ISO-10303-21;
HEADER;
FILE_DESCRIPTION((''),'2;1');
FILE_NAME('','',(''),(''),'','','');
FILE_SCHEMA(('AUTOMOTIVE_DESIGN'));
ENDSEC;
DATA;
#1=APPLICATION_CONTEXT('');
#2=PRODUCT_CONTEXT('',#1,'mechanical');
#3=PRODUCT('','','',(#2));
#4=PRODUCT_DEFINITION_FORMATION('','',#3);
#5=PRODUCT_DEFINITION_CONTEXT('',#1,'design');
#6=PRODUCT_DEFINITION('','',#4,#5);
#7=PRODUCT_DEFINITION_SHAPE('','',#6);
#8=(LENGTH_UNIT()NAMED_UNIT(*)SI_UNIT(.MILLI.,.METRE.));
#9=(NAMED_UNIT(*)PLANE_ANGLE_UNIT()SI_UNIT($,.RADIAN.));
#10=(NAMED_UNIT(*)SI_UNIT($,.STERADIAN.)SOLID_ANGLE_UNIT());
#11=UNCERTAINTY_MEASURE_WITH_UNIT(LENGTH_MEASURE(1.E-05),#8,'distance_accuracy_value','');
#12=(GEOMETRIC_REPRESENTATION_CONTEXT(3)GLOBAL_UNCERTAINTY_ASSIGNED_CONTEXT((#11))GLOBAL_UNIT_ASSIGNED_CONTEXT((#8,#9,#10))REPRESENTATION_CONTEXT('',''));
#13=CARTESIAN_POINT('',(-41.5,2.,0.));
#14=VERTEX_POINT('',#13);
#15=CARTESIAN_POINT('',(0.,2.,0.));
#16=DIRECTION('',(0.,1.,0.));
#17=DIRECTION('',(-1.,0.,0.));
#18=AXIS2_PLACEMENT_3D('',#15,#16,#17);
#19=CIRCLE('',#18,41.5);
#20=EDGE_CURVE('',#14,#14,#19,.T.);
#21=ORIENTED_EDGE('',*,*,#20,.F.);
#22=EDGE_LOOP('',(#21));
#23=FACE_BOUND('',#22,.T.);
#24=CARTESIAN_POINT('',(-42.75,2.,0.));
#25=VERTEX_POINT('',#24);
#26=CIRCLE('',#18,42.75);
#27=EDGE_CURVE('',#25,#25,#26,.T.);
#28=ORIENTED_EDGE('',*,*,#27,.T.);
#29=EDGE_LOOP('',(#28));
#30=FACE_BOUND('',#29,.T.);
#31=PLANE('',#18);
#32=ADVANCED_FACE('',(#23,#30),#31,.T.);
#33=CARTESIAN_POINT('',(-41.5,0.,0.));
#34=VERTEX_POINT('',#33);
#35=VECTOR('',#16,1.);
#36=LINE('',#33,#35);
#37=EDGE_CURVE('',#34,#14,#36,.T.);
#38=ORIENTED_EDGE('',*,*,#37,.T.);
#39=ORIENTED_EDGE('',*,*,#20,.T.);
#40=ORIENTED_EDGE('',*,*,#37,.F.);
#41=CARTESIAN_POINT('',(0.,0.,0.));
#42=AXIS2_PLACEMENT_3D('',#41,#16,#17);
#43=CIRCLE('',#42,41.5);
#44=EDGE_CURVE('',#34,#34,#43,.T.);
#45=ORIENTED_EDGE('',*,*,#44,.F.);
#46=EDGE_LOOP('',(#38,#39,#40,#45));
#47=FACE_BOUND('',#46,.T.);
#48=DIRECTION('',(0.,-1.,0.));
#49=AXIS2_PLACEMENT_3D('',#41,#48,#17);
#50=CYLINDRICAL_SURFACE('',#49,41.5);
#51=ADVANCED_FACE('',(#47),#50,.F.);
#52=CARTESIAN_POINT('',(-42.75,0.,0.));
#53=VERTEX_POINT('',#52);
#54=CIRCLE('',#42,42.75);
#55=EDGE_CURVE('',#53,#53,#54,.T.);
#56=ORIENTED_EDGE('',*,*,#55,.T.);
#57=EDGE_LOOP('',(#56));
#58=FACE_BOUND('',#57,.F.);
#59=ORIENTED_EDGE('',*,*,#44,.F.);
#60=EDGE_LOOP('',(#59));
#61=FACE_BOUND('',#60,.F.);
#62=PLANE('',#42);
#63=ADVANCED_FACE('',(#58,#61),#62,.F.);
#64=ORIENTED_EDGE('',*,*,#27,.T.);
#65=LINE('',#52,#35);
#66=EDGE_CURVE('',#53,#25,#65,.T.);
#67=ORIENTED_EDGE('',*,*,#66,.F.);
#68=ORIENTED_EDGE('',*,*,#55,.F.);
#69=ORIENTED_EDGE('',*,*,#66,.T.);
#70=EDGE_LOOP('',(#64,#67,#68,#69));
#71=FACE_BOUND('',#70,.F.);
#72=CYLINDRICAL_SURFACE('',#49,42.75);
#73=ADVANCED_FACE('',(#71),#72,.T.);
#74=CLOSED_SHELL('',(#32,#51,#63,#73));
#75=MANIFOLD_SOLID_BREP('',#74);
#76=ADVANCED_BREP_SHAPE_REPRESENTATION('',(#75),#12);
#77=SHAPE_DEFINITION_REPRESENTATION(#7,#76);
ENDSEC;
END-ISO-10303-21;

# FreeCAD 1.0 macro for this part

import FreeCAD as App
import Part
import Sketcher

V = App.Vector

doc = App.newDocument("Part")
body = doc.addObject("PartDesign::Body", "Body")

# Sketch on XZ plane
sketch1 = doc.addObject("Sketcher::SketchObject", "Sketch")
body.addObject(sketch1)
sketch1.AttachmentSupport = (doc.XZ_Plane, [""])
sketch1.MapMode = "FlatFace"
sketch1.addGeometry([
    Part.Circle(V(0, 0, 0), V(0, 0, 1), 43),
    Part.Circle(V(0, 0, 0), V(0, 0, 1), 42),
], False)
sketch1.addConstraint([
    Sketcher.Constraint("Coincident", 0, 3, -1, 1),
    Sketcher.Constraint("Coincident", 1, 3, -1, 1),
    Sketcher.Constraint("Diameter", 1, 83.0),
    Sketcher.Constraint("Diameter", 0, 85.5),
])
pad1 = doc.addObject("PartDesign::Pad", "Pad")
body.addObject(pad1)
pad1.Profile = sketch1
pad1.Length = 2
pad1.Reversed = True

doc.recompute()
